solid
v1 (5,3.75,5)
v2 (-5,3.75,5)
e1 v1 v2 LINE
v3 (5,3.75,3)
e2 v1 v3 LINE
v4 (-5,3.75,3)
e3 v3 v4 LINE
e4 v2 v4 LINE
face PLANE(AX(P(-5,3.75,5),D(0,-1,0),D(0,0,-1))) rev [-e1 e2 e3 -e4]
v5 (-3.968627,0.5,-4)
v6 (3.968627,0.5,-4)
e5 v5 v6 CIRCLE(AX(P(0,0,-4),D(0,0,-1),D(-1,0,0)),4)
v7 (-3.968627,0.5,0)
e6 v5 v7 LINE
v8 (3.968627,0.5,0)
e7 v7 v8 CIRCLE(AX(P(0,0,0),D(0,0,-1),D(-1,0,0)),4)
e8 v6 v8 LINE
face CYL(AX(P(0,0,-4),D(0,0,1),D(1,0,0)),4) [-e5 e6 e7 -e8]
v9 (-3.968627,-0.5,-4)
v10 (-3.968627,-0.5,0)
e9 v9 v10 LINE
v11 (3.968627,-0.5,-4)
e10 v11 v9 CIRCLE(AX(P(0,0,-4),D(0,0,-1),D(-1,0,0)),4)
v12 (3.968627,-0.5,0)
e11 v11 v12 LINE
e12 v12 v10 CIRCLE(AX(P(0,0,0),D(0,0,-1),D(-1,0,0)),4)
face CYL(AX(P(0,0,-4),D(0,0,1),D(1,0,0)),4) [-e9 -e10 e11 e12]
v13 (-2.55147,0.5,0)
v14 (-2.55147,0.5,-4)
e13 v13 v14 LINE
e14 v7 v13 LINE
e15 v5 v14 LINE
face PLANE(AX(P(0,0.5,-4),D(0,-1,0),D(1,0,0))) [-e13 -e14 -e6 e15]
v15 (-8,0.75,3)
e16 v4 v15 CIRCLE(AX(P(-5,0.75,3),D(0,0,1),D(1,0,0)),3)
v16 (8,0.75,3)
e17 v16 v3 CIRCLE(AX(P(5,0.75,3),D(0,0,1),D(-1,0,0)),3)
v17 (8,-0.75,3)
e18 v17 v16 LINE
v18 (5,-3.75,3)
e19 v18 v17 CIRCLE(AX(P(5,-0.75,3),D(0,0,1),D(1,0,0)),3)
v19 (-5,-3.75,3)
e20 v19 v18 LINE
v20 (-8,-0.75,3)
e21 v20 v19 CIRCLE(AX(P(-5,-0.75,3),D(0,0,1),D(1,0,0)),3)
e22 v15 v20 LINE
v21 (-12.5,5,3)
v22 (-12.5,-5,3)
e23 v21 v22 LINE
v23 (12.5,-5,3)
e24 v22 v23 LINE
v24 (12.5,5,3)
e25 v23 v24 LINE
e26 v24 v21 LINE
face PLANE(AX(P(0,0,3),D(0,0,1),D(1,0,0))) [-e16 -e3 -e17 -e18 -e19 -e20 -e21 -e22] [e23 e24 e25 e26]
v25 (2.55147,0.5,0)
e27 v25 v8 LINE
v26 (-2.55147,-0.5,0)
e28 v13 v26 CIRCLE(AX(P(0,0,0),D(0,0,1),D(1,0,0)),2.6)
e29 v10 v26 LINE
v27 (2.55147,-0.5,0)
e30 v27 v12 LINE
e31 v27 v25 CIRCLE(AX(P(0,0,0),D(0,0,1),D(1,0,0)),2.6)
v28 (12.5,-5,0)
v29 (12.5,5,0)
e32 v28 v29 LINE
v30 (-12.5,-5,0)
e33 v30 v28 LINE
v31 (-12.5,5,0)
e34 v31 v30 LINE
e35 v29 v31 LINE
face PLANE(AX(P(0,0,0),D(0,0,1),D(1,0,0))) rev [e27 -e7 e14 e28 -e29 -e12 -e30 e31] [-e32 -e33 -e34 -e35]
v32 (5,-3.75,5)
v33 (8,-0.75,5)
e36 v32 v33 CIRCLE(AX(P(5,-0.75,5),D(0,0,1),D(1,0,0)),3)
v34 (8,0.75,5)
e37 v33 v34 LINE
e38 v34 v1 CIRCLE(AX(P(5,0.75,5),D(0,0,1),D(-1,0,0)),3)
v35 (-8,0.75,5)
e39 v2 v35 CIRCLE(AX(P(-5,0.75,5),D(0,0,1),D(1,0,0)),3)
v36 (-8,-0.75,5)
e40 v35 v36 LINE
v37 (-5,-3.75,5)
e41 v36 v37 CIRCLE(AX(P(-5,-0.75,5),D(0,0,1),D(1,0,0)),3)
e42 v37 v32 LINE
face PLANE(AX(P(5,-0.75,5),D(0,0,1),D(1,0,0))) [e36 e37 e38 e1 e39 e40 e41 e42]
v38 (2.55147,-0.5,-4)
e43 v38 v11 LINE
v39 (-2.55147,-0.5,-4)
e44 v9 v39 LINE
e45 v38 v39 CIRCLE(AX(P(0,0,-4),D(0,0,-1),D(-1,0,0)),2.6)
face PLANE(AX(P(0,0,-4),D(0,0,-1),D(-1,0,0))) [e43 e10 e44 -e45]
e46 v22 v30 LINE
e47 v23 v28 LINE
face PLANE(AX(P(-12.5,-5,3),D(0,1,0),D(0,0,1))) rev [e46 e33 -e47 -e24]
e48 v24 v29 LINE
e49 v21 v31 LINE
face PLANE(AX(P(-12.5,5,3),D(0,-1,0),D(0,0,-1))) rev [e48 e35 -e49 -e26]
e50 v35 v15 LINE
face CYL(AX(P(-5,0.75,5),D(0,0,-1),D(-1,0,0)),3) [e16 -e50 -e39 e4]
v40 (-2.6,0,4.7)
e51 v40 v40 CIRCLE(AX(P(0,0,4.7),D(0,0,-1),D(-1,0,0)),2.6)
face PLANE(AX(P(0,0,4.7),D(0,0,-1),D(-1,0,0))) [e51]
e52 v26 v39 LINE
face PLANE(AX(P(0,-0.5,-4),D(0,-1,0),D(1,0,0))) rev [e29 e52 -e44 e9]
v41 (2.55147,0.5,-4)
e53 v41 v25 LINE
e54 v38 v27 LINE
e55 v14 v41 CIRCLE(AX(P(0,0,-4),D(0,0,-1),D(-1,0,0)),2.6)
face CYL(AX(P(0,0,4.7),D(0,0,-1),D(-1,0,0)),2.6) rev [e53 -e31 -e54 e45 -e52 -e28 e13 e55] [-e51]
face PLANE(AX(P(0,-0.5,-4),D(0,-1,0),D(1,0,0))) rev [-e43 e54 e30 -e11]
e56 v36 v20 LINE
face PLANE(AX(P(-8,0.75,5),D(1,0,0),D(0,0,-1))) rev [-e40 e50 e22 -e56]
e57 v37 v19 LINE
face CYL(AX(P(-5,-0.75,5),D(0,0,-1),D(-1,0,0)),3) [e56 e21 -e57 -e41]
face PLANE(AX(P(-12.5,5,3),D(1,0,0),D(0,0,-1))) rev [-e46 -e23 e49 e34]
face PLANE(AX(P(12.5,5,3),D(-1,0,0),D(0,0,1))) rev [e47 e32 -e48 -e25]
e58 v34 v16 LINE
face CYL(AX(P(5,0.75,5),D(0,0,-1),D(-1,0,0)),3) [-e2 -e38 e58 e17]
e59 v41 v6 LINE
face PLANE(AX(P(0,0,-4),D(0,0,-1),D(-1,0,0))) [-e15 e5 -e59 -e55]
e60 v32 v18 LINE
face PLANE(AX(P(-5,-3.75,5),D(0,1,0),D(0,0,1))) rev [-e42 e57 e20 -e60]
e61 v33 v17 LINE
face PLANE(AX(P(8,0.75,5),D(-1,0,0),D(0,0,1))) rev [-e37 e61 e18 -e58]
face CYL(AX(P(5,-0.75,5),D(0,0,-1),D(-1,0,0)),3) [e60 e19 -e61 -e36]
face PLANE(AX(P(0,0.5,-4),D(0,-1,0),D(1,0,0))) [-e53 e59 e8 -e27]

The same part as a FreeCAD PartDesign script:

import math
import FreeCAD as App
import Part
import Sketcher

V = App.Vector
Q = App.Units.Quantity

doc = App.newDocument("Part")
body = doc.addObject("PartDesign::Body", "Body")

# Sketch on XY plane
sketch1 = doc.addObject("Sketcher::SketchObject", "Sketch")
body.addObject(sketch1)
sketch1.AttachmentSupport = (doc.XY_Plane, [""])
sketch1.MapMode = "FlatFace"
sketch1.addGeometry([
    Part.LineSegment(V(-12.5, 5, 0), V(-12.5, -5, 0)),
    Part.LineSegment(V(-12.5, -5, 0), V(12.5, -5, 0)),
    Part.LineSegment(V(12.5, -5, 0), V(12.5, 5, 0)),
    Part.LineSegment(V(12.5, 5, 0), V(-12.5, 5, 0)),
], False)
sketch1.addConstraint([
    Sketcher.Constraint("Coincident", 0, 2, 1, 1),
    Sketcher.Constraint("Coincident", 1, 2, 2, 1),
    Sketcher.Constraint("Coincident", 2, 2, 3, 1),
    Sketcher.Constraint("Coincident", 3, 2, 0, 1),
    Sketcher.Constraint("Vertical", 0),
    Sketcher.Constraint("Horizontal", 1),
    Sketcher.Constraint("Vertical", 2),
    Sketcher.Constraint("Horizontal", 3),
    Sketcher.Constraint("Symmetric", 0, 2, 2, 2, -1, 1),
    Sketcher.Constraint("DistanceX", 1, 1, 1, 2, Q("25 mm")),
    Sketcher.Constraint("DistanceY", 0, 2, 0, 1, Q("10 mm")),
])
pad1 = doc.addObject("PartDesign::Pad", "Pad")
body.addObject(pad1)
pad1.Profile = sketch1
pad1.Length = 3

# Sketch on XY plane
sketch2 = doc.addObject("Sketcher::SketchObject", "Sketch001")
body.addObject(sketch2)
sketch2.AttachmentSupport = (doc.XY_Plane, [""])
sketch2.MapMode = "FlatFace"
sketch2.AttachmentOffset = App.Placement(V(0, 0, 3), App.Rotation())
sketch2.addGeometry([
    Part.LineSegment(V(5, 3.75, 0), V(-5, 3.75, 0)),  # 0
    Part.ArcOfCircle(Part.Circle(V(-5, 0.75, 0), V(0, 0, 1), 3), math.radians(90), math.radians(180)),  # 1
    Part.LineSegment(V(-8, 0.75, 0), V(-8, -0.75, 0)),  # 2
    Part.ArcOfCircle(Part.Circle(V(-5, -0.75, 0), V(0, 0, 1), 3), math.radians(180), math.radians(270)),  # 3
    Part.LineSegment(V(-5, -3.75, 0), V(5, -3.75, 0)),  # 4
    Part.ArcOfCircle(Part.Circle(V(5, -0.75, 0), V(0, 0, 1), 3), math.radians(-90), math.radians(0)),  # 5
    Part.LineSegment(V(8, -0.75, 0), V(8, 0.75, 0)),  # 6
    Part.ArcOfCircle(Part.Circle(V(5, 0.75, 0), V(0, 0, 1), 3), math.radians(0), math.radians(90)),  # 7
], False)
sketch2.addConstraint([
    Sketcher.Constraint("Tangent", 0, 2, 1, 1),
    Sketcher.Constraint("Tangent", 1, 2, 2, 1),
    Sketcher.Constraint("Tangent", 2, 2, 3, 1),
    Sketcher.Constraint("Tangent", 3, 2, 4, 1),
    Sketcher.Constraint("Tangent", 4, 2, 5, 1),
    Sketcher.Constraint("Tangent", 5, 2, 6, 1),
    Sketcher.Constraint("Tangent", 6, 2, 7, 1),
    Sketcher.Constraint("Tangent", 7, 2, 0, 1),
    Sketcher.Constraint("Horizontal", 0),
    Sketcher.Constraint("Vertical", 2),
    Sketcher.Constraint("Horizontal", 4),
    Sketcher.Constraint("Vertical", 6),
    Sketcher.Constraint("Equal", 1, 3),
    Sketcher.Constraint("Equal", 3, 5),
    Sketcher.Constraint("Equal", 5, 7),
    Sketcher.Constraint("Symmetric", 1, 3, 5, 3, -1, 1),
    Sketcher.Constraint("Radius", 1, Q("3 mm")),
    Sketcher.Constraint("DistanceX", 0, 2, 0, 1, Q("10 mm")),
    Sketcher.Constraint("DistanceY", 2, 2, 2, 1, Q("1.5 mm")),
])
pad2 = doc.addObject("PartDesign::Pad", "Pad001")
body.addObject(pad2)
pad2.Profile = sketch2
pad2.Length = 2

# Sketch on XY plane
sketch3 = doc.addObject("Sketcher::SketchObject", "Sketch002")
body.addObject(sketch3)
sketch3.AttachmentSupport = (doc.XY_Plane, [""])
sketch3.MapMode = "FlatFace"
sketch3.addGeometry([
    Part.ArcOfCircle(Part.Circle(V(0, 0, 0), V(0, 0, 1), 4), math.radians(7.180756), math.radians(172.819244)),
    Part.LineSegment(V(3.968627, 0.5, 0), V(-3.968627, 0.5, 0)),
    Part.ArcOfCircle(Part.Circle(V(0, 0, 0), V(0, 0, 1), 4), math.radians(-172.819244), math.radians(-7.180756)),
    Part.LineSegment(V(-3.968627, -0.5, 0), V(3.968627, -0.5, 0)),
], False)
sketch3.addConstraint([
    Sketcher.Constraint("Coincident", 0, 1, 1, 1),
    Sketcher.Constraint("Coincident", 1, 2, 0, 2),
    Sketcher.Constraint("Coincident", 2, 1, 3, 1),
    Sketcher.Constraint("Coincident", 3, 2, 2, 2),
    Sketcher.Constraint("Horizontal", 1),
    Sketcher.Constraint("Horizontal", 3),
    Sketcher.Constraint("Coincident", 0, 3, -1, 1),
    Sketcher.Constraint("Coincident", 2, 3, -1, 1),
    Sketcher.Constraint("Equal", 0, 2),
    Sketcher.Constraint("Vertical", 1, 2, 2, 1),
    Sketcher.Constraint("Radius", 0, Q("4 mm")),
    Sketcher.Constraint("DistanceY", 2, 1, 1, 2, Q("1 mm")),
])
pad3 = doc.addObject("PartDesign::Pad", "Pad002")
body.addObject(pad3)
pad3.Profile = sketch3
pad3.Length = 4
pad3.Reversed = True

# Sketch on XY plane
sketch4 = doc.addObject("Sketcher::SketchObject", "Sketch003")
body.addObject(sketch4)
sketch4.AttachmentSupport = (doc.XY_Plane, [""])
sketch4.MapMode = "FlatFace"
sketch4.AttachmentOffset = App.Placement(V(0, 0, -4), App.Rotation())
sketch4.addGeometry(Part.Circle(V(0, 0, 0), V(0, 0, 1), 2.6), False)
sketch4.addConstraint([
    Sketcher.Constraint("Coincident", 0, 3, -1, 1),
    Sketcher.Constraint("Diameter", 0, Q("5.2 mm")),
])
pocket1 = doc.addObject("PartDesign::Pocket", "Pocket")
body.addObject(pocket1)
pocket1.Profile = sketch4
pocket1.Length = 8.7
pocket1.Reversed = True

doc.recompute()
